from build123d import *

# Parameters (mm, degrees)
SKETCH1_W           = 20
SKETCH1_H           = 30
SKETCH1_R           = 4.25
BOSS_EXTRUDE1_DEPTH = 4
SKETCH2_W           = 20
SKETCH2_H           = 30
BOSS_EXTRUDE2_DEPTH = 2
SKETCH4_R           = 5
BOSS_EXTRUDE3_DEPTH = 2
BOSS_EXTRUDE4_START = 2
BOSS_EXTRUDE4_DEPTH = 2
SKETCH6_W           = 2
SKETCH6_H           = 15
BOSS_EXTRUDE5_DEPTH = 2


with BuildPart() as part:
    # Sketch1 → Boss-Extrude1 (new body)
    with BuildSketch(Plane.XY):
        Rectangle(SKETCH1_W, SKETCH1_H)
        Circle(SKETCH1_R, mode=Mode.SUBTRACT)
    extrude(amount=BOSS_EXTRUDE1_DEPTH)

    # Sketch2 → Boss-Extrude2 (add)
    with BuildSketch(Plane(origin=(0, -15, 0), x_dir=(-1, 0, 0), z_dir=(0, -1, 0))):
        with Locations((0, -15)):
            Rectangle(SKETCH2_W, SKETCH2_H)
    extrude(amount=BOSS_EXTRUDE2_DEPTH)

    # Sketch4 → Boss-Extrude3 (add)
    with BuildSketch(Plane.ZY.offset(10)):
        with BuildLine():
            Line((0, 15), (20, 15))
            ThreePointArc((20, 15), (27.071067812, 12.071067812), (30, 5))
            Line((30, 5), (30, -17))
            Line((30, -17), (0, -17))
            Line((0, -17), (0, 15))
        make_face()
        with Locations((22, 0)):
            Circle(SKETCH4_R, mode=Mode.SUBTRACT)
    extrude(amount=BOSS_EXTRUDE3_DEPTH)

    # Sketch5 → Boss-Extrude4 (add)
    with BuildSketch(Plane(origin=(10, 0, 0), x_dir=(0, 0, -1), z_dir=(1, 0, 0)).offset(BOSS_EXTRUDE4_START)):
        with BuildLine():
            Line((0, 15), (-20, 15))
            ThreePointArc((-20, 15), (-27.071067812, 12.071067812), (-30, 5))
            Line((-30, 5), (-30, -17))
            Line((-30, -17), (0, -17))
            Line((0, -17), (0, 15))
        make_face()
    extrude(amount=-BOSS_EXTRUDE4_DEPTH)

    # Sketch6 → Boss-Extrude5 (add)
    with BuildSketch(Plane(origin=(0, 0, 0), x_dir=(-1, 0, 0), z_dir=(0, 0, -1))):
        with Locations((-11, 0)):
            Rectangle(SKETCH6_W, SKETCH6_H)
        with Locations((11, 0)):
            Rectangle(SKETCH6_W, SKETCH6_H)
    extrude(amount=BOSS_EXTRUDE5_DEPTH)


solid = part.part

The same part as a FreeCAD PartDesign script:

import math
import FreeCAD as App
import Part
import Sketcher


def add_polygon(sketch, points):
    """Adds a closed chain of lines whose ends are joined by coincident constraints."""
    first, n = sketch.GeometryCount, len(points)
    for a, b in zip(points, points[1:] + points[:1]):
        sketch.addGeometry(Part.LineSegment(App.Vector(*a, 0), App.Vector(*b, 0)), False)
    for i in range(n):
        sketch.addConstraint(Sketcher.Constraint("Coincident", first + i, 2, first + (i + 1) % n, 1))

doc = App.newDocument("Part")
body = doc.addObject("PartDesign::Body", "Body")

sketch1 = doc.addObject("Sketcher::SketchObject", "Sketch")
body.addObject(sketch1)
sketch1.AttachmentSupport = (doc.XY_Plane, [""])
sketch1.MapMode = "FlatFace"
add_polygon(sketch1, [(-10, 15), (-10, -15), (10, -15), (10, 15)])
sketch1.addGeometry(Part.Circle(App.Vector(0, 0, 0), App.Vector(0, 0, 1), 4.2), False)
sketch1.addConstraint([
    Sketcher.Constraint("Vertical", 0),
    Sketcher.Constraint("Horizontal", 1),
    Sketcher.Constraint("Vertical", 2),
    Sketcher.Constraint("Horizontal", 3),
    Sketcher.Constraint("Coincident", 4, 3, -1, 1),
    Sketcher.Constraint("Symmetric", 0, 2, 2, 2, -1, 1),
    Sketcher.Constraint("Diameter", 4, 8.5),
    Sketcher.Constraint("DistanceX", 1, 1, 1, 2, 20.0),
    Sketcher.Constraint("DistanceY", 0, 2, 0, 1, 30.0),
])
pad1 = doc.addObject("PartDesign::Pad", "Pad")
body.addObject(pad1)
pad1.Profile = sketch1
pad1.Length = 4

sketch2 = doc.addObject("Sketcher::SketchObject", "Sketch001")
body.addObject(sketch2)
sketch2.AttachmentSupport = (doc.XZ_Plane, [""])
sketch2.MapMode = "FlatFace"
sketch2.AttachmentOffset = App.Placement(App.Vector(0, 0, 15), App.Rotation())
add_polygon(sketch2, [(10, 0), (10, 30), (-10, 30), (-10, 0)])
sketch2.addConstraint([
    Sketcher.Constraint("Vertical", 0),
    Sketcher.Constraint("Horizontal", 1),
    Sketcher.Constraint("Vertical", 2),
    Sketcher.Constraint("Horizontal", 3),
    Sketcher.Constraint("Symmetric", 2, 2, 3, 2, -1, 1),
    Sketcher.Constraint("DistanceX", 1, 2, 1, 1, 20.0),
    Sketcher.Constraint("DistanceY", 0, 1, 0, 2, 30.0),
])
pad2 = doc.addObject("PartDesign::Pad", "Pad001")
body.addObject(pad2)
pad2.Profile = sketch2
pad2.Length = 2

sketch3 = doc.addObject("Sketcher::SketchObject", "Sketch002")
body.addObject(sketch3)
sketch3.AttachmentSupport = (doc.YZ_Plane, [""])
sketch3.MapMode = "FlatFace"
sketch3.AttachmentOffset = App.Placement(App.Vector(0, 0, -10), App.Rotation())
sketch3.addGeometry([
    Part.LineSegment(App.Vector(15, 20, 0), App.Vector(15, 0, 0)),
    Part.LineSegment(App.Vector(15, 0, 0), App.Vector(-17, 0, 0)),
    Part.LineSegment(App.Vector(-17, 0, 0), App.Vector(-17, 30, 0)),
    Part.LineSegment(App.Vector(-17, 30, 0), App.Vector(5, 30, 0)),
    Part.ArcOfCircle(Part.Circle(App.Vector(5, 20, 0), App.Vector(0, 0, 1), 10), math.radians(0), math.radians(90)),
    Part.Circle(App.Vector(0, 22, 0), App.Vector(0, 0, 1), 5),
], False)
sketch3.addConstraint([
    Sketcher.Constraint("Coincident", 0, 2, 1, 1),
    Sketcher.Constraint("Coincident", 1, 2, 2, 1),
    Sketcher.Constraint("Coincident", 2, 2, 3, 1),
    Sketcher.Constraint("Tangent", 3, 2, 4, 2),
    Sketcher.Constraint("Tangent", 4, 1, 0, 1),
    Sketcher.Constraint("Vertical", 0),
    Sketcher.Constraint("Horizontal", 1),
    Sketcher.Constraint("Vertical", 2),
    Sketcher.Constraint("Horizontal", 3),
    Sketcher.Constraint("PointOnObject", 5, 3, -2),
    Sketcher.Constraint("PointOnObject", 0, 2, -1),
    Sketcher.Constraint("Diameter", 5, 10.0),
    Sketcher.Constraint("Radius", 4, 10.0),
    Sketcher.Constraint("DistanceX", 1, 2, 1, 1, 32.0),
    Sketcher.Constraint("DistanceY", 0, 2, 0, 1, 20.0),
    Sketcher.Constraint("DistanceX", -1, 1, 4, 3, 5.0),
    Sketcher.Constraint("DistanceY", -1, 1, 5, 3, 22.0),
])
pad3 = doc.addObject("PartDesign::Pad", "Pad002")
body.addObject(pad3)
pad3.Profile = sketch3
pad3.Length = 2
pad3.Reversed = True

sketch4 = doc.addObject("Sketcher::SketchObject", "Sketch003")
body.addObject(sketch4)
sketch4.AttachmentSupport = (doc.YZ_Plane, [""])
sketch4.MapMode = "FlatFace"
sketch4.AttachmentOffset = App.Placement(App.Vector(0, 0, 12), App.Rotation())
sketch4.addGeometry([
    Part.LineSegment(App.Vector(15, 0, 0), App.Vector(15, 20, 0)),
    Part.ArcOfCircle(Part.Circle(App.Vector(5, 20, 0), App.Vector(0, 0, 1), 10), math.radians(0), math.radians(90)),
    Part.LineSegment(App.Vector(5, 30, 0), App.Vector(-17, 30, 0)),
    Part.LineSegment(App.Vector(-17, 30, 0), App.Vector(-17, 0, 0)),
    Part.LineSegment(App.Vector(-17, 0, 0), App.Vector(15, 0, 0)),
], False)
sketch4.addConstraint([
    Sketcher.Constraint("Tangent", 0, 2, 1, 1),
    Sketcher.Constraint("Tangent", 1, 2, 2, 1),
    Sketcher.Constraint("Coincident", 2, 2, 3, 1),
    Sketcher.Constraint("Coincident", 3, 2, 4, 1),
    Sketcher.Constraint("Coincident", 4, 2, 0, 1),
    Sketcher.Constraint("Vertical", 0),
    Sketcher.Constraint("Horizontal", 2),
    Sketcher.Constraint("Vertical", 3),
    Sketcher.Constraint("Horizontal", 4),
    Sketcher.Constraint("PointOnObject", 3, 2, -1),
    Sketcher.Constraint("Radius", 1, 10.0),
    Sketcher.Constraint("DistanceX", 2, 2, 2, 1, 22.0),
    Sketcher.Constraint("DistanceY", 0, 1, 0, 2, 20.0),
    Sketcher.Constraint("DistanceX", -1, 1, 1, 3, 5.0),
])
pad4 = doc.addObject("PartDesign::Pad", "Pad003")
body.addObject(pad4)
pad4.Profile = sketch4
pad4.Length = 2
pad4.Reversed = True

sketch5 = doc.addObject("Sketcher::SketchObject", "Sketch004")
body.addObject(sketch5)
sketch5.AttachmentSupport = (doc.XY_Plane, [""])
sketch5.MapMode = "FlatFace"
add_polygon(sketch5, [(12, 7.5), (12, -7.5), (10, -7.5), (10, 7.5)])
add_polygon(sketch5, [(-10, 7.5), (-10, -7.5), (-12, -7.5), (-12, 7.5)])
sketch5.addConstraint([
    Sketcher.Constraint("Vertical", 0),
    Sketcher.Constraint("Horizontal", 1),
    Sketcher.Constraint("Vertical", 2),
    Sketcher.Constraint("Horizontal", 3),
    Sketcher.Constraint("Vertical", 4),
    Sketcher.Constraint("Horizontal", 5),
    Sketcher.Constraint("Vertical", 6),
    Sketcher.Constraint("Horizontal", 7),
    Sketcher.Constraint("Symmetric", 2, 2, 4, 2, -1, 1),
    Sketcher.Constraint("Symmetric", 0, 2, 6, 2, -1, 1),
    Sketcher.Constraint("Horizontal", 1, 2, 4, 2),
    Sketcher.Constraint("DistanceX", 1, 2, 1, 1, 2.0),
    Sketcher.Constraint("DistanceY", 0, 2, 0, 1, 15.0),
    Sketcher.Constraint("DistanceX", -1, 1, 0, 2, 12.0),
])
pad5 = doc.addObject("PartDesign::Pad", "Pad004")
body.addObject(pad5)
pad5.Profile = sketch5
pad5.Length = 2
pad5.Reversed = True

doc.recompute()
